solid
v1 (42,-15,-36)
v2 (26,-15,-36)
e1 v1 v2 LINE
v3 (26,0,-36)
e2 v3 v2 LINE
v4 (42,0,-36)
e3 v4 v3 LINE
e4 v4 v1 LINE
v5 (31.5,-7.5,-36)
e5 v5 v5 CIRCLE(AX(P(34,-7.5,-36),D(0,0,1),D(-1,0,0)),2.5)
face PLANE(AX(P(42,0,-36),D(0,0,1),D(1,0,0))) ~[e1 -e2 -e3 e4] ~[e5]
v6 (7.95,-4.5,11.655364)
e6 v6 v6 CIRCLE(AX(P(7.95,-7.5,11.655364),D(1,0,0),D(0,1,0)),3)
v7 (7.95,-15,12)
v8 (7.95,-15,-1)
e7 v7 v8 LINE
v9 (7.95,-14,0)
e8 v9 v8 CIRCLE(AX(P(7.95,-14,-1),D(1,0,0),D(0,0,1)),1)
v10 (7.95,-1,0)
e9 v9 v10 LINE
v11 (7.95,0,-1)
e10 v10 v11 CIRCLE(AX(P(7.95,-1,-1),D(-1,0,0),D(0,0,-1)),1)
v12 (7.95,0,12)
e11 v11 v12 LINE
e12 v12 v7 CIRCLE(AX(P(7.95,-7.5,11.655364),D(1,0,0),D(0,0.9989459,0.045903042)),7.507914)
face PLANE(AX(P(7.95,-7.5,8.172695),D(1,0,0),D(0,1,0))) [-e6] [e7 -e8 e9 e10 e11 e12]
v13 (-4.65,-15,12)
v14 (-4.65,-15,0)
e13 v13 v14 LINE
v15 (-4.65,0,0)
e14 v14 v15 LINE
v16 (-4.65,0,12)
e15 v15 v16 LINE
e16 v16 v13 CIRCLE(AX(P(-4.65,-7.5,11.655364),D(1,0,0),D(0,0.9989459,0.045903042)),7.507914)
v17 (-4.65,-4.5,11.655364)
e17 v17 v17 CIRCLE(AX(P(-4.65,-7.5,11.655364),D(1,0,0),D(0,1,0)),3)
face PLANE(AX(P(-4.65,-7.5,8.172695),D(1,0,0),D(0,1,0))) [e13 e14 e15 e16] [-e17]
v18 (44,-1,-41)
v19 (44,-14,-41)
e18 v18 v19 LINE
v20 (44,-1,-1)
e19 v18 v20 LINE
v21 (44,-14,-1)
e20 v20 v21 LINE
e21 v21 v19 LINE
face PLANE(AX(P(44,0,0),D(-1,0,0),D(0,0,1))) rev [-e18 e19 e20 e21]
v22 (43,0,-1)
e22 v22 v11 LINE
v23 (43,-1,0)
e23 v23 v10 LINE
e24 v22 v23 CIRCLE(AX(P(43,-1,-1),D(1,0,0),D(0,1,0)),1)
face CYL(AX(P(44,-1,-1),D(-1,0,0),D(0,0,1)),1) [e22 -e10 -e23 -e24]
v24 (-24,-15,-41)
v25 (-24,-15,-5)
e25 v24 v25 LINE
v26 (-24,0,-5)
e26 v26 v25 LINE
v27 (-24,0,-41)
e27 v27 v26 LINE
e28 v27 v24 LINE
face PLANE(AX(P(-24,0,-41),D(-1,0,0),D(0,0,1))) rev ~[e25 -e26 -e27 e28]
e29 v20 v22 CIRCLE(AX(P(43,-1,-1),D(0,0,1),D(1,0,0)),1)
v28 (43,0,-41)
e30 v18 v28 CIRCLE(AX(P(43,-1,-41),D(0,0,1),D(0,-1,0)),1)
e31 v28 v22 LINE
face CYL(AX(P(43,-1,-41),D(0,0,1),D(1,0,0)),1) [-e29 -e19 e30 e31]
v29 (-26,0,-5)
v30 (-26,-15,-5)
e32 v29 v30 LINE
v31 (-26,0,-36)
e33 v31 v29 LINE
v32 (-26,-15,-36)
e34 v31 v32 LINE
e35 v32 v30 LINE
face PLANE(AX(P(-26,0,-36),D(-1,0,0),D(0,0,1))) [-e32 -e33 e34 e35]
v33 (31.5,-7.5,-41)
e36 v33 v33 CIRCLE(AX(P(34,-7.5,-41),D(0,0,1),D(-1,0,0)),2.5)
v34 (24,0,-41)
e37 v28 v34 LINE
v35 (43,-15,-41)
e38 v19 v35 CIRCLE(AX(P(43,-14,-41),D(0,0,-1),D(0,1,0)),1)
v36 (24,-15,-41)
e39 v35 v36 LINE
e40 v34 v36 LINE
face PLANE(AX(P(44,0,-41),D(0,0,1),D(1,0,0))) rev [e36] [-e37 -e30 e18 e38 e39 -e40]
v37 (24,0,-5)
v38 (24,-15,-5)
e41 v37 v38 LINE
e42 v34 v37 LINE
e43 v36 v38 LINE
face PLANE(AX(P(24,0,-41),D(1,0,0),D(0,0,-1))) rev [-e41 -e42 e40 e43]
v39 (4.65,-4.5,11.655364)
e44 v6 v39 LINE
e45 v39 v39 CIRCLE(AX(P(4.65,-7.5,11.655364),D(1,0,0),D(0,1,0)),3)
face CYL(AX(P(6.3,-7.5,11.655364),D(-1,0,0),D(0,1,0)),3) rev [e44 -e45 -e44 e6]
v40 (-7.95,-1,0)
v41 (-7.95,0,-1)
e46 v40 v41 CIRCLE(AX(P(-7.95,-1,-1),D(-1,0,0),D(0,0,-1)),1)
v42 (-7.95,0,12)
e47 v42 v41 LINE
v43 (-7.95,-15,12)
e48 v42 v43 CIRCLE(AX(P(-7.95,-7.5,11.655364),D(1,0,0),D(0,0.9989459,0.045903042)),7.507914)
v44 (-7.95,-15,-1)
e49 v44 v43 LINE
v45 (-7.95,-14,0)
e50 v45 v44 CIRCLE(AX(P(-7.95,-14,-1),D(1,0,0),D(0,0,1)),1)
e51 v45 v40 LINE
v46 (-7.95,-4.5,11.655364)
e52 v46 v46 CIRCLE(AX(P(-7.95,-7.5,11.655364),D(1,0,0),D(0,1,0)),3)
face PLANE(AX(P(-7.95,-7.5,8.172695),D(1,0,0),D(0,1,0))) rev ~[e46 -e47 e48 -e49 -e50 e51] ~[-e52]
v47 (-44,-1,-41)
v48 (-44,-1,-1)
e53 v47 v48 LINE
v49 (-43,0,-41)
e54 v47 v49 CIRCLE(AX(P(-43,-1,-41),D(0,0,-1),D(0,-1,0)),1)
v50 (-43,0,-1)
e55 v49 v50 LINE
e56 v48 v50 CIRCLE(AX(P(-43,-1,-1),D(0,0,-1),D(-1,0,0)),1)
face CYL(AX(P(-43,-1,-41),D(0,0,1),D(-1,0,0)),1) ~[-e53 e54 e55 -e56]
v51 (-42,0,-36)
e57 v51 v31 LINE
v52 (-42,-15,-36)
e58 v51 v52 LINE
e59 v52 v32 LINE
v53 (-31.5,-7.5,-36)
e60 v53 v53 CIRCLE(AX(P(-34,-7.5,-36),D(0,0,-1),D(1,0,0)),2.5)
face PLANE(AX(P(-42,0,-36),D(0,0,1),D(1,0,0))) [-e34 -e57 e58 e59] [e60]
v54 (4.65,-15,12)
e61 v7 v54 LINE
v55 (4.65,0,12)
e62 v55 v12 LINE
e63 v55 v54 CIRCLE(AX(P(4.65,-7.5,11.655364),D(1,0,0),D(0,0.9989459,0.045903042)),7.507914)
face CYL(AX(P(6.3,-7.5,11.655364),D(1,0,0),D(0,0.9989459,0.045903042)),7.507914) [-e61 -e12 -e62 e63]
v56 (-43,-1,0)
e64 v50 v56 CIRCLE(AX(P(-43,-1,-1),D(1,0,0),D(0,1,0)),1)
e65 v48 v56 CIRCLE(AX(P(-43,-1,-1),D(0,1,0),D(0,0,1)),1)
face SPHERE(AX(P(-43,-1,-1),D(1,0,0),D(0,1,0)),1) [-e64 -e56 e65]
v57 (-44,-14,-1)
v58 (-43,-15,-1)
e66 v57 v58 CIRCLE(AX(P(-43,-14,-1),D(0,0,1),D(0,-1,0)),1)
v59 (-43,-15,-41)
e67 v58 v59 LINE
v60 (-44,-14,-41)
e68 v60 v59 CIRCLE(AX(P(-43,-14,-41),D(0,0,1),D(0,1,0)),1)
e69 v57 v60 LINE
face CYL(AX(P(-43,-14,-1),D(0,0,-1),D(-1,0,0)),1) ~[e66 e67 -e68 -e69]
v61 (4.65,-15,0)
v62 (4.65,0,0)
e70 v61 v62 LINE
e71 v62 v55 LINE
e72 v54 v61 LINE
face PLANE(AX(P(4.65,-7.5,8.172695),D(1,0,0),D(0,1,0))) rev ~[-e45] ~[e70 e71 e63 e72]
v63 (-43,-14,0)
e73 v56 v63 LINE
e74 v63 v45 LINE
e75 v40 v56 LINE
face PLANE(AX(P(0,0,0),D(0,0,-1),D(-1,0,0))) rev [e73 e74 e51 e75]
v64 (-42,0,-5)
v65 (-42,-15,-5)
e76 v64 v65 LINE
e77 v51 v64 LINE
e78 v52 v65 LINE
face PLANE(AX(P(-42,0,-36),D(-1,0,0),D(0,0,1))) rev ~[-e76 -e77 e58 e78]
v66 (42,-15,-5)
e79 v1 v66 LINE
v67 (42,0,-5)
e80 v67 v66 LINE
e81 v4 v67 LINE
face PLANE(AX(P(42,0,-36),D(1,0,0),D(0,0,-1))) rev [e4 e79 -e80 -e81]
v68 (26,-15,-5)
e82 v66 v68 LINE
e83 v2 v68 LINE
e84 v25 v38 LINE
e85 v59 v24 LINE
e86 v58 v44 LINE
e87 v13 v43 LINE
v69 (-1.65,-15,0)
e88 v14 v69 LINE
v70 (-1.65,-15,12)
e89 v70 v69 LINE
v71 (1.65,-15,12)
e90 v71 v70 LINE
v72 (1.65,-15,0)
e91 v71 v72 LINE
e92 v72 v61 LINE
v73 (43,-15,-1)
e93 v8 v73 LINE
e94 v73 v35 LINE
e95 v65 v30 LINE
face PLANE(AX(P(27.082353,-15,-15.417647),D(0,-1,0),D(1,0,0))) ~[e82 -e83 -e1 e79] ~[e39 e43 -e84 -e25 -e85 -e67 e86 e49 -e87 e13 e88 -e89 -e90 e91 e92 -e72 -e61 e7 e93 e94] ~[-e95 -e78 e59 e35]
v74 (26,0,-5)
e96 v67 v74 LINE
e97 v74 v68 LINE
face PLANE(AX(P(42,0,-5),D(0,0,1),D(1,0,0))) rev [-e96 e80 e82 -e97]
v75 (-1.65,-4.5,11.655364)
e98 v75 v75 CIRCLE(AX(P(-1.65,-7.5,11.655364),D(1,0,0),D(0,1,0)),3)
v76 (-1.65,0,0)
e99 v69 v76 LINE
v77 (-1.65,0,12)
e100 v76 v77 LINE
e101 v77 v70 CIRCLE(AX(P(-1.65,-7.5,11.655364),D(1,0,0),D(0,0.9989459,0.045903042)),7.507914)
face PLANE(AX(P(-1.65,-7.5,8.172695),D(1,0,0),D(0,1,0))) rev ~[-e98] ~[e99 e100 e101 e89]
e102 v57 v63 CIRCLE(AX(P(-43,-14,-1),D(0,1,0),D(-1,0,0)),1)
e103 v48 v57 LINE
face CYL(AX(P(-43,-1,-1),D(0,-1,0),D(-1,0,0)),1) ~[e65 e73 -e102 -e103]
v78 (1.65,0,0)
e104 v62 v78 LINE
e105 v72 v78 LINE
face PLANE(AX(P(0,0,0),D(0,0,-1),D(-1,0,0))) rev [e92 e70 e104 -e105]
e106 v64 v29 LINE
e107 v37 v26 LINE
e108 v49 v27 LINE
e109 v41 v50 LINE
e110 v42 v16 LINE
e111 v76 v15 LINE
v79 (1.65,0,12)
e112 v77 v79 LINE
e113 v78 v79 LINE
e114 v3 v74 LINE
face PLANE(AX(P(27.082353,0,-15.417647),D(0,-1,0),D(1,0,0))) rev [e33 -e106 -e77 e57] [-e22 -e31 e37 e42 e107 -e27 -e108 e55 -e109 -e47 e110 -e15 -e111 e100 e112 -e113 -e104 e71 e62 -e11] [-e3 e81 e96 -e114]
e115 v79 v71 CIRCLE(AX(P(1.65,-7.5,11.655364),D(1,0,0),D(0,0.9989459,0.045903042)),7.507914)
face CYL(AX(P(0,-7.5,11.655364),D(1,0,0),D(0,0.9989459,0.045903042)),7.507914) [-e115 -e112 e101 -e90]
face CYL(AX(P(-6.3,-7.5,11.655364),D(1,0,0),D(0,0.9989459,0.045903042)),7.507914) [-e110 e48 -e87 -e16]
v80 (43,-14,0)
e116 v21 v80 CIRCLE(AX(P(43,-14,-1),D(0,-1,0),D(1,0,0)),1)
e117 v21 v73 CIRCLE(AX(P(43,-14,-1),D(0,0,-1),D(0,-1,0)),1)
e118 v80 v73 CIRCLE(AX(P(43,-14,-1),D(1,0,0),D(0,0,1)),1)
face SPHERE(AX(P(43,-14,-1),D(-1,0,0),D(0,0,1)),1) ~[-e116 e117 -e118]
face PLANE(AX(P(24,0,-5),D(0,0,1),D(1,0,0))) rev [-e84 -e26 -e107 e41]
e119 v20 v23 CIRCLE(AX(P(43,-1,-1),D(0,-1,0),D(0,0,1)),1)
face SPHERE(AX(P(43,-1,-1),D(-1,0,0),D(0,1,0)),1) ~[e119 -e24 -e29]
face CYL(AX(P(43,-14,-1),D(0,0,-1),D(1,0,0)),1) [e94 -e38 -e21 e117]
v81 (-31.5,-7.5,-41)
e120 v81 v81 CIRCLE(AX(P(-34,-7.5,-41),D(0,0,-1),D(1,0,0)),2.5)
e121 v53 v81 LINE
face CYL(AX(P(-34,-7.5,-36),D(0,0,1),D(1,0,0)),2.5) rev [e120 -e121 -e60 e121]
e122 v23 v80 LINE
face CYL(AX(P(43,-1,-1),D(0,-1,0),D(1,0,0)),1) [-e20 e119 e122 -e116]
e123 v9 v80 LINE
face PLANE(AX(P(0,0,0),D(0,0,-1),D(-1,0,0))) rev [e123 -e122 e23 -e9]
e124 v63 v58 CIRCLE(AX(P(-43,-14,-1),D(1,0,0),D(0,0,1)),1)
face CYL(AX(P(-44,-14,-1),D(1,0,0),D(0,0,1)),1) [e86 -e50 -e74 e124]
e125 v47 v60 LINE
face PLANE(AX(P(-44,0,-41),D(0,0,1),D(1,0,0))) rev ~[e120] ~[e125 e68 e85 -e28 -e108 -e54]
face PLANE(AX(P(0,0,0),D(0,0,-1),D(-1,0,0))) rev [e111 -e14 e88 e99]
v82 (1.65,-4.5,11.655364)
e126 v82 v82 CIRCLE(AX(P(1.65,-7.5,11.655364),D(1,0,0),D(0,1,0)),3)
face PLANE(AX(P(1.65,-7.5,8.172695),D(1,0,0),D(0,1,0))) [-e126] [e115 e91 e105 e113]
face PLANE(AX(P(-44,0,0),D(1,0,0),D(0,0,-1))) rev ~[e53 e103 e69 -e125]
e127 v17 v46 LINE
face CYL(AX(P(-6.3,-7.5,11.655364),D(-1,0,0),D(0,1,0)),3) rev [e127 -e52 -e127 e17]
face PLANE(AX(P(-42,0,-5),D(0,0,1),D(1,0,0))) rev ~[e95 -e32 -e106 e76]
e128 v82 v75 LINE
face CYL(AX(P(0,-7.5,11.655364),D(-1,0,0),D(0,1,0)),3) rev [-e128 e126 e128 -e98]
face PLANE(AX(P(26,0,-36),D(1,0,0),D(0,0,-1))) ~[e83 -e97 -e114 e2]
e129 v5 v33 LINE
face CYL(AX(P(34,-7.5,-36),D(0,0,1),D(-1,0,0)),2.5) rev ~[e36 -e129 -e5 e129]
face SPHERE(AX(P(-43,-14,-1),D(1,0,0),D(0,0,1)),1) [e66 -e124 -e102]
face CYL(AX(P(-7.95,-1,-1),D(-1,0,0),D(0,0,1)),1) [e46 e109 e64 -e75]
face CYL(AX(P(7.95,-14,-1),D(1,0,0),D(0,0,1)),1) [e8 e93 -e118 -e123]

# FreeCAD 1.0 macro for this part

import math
import FreeCAD as App
import Part
import Sketcher

V = App.Vector
Q = App.Units.Quantity


def edges_at(feature, points):
    """Names of the edges that pass closest to the given points."""
    edges = feature.Shape.Edges
    near = lambda p: min(range(len(edges)), key=lambda i: edges[i].distToShape(Part.Vertex(*p))[0])
    return sorted({f"Edge{near(p) + 1}" for p in points})

doc = App.newDocument("Part")
body = doc.addObject("PartDesign::Body", "Body")

sketch1 = body.newObject("Sketcher::SketchObject", "Sketch")
sketch1.AttachmentSupport = (doc.getObject("XZ_Plane"), [""])
sketch1.MapMode = "FlatFace"
sketch1.addGeometry(Part.LineSegment(V(0, 0, 0), V(-44, 0, 0)), False)
sketch1.addGeometry(Part.LineSegment(V(-44, 0, 0), V(-44, -41, 0)), False)
sketch1.addGeometry(Part.LineSegment(V(-44, -41, 0), V(-24, -41, 0)), False)
sketch1.addGeometry(Part.LineSegment(V(-24, -41, 0), V(-24, -5, 0)), False)
sketch1.addGeometry(Part.LineSegment(V(-24, -5, 0), V(0, -5, 0)), False)
sketch1.addGeometry(Part.LineSegment(V(0, -5, 0), V(0, 0, 0)), False)
sketch1.addGeometry(Part.LineSegment(V(-26, -36, 0), V(-42, -36, 0)), False)
sketch1.addGeometry(Part.LineSegment(V(-42, -36, 0), V(-42, -5, 0)), False)
sketch1.addGeometry(Part.LineSegment(V(-42, -5, 0), V(-26, -5, 0)), False)
sketch1.addGeometry(Part.LineSegment(V(-26, -5, 0), V(-26, -36, 0)), False)
sketch1.addConstraint(Sketcher.Constraint("Coincident", 0, 2, 1, 1))
sketch1.addConstraint(Sketcher.Constraint("Coincident", 1, 2, 2, 1))
sketch1.addConstraint(Sketcher.Constraint("Coincident", 2, 2, 3, 1))
sketch1.addConstraint(Sketcher.Constraint("Coincident", 3, 2, 4, 1))
sketch1.addConstraint(Sketcher.Constraint("Coincident", 4, 2, 5, 1))
sketch1.addConstraint(Sketcher.Constraint("Coincident", 5, 2, 0, 1))
sketch1.addConstraint(Sketcher.Constraint("Coincident", 6, 2, 7, 1))
sketch1.addConstraint(Sketcher.Constraint("Coincident", 7, 2, 8, 1))
sketch1.addConstraint(Sketcher.Constraint("Coincident", 8, 2, 9, 1))
sketch1.addConstraint(Sketcher.Constraint("Coincident", 9, 2, 6, 1))
sketch1.addConstraint(Sketcher.Constraint("Horizontal", 0))
sketch1.addConstraint(Sketcher.Constraint("Vertical", 1))
sketch1.addConstraint(Sketcher.Constraint("Horizontal", 2))
sketch1.addConstraint(Sketcher.Constraint("Vertical", 3))
sketch1.addConstraint(Sketcher.Constraint("Horizontal", 4))
sketch1.addConstraint(Sketcher.Constraint("Vertical", 5))
sketch1.addConstraint(Sketcher.Constraint("Horizontal", 6))
sketch1.addConstraint(Sketcher.Constraint("Vertical", 7))
sketch1.addConstraint(Sketcher.Constraint("Horizontal", 8))
sketch1.addConstraint(Sketcher.Constraint("Vertical", 9))
sketch1.addConstraint(Sketcher.Constraint("Coincident", 5, 2, -1, 1))
sketch1.addConstraint(Sketcher.Constraint("Horizontal", 4, 2, 7, 2))
sketch1.addConstraint(Sketcher.Constraint("DistanceX", 0, 2, 0, 1, Q("44 mm")))
sketch1.addConstraint(Sketcher.Constraint("DistanceX", 2, 1, 2, 2, Q("20 mm")))
sketch1.addConstraint(Sketcher.Constraint("DistanceX", 6, 2, 6, 1, Q("16 mm")))
sketch1.addConstraint(Sketcher.Constraint("DistanceY", 1, 2, 1, 1, Q("41 mm")))
sketch1.addConstraint(Sketcher.Constraint("DistanceY", 3, 1, 3, 2, Q("36 mm")))
sketch1.addConstraint(Sketcher.Constraint("DistanceY", 7, 1, 7, 2, Q("31 mm")))
sketch1.addConstraint(Sketcher.Constraint("DistanceX", 6, 2, -1, 1, Q("42 mm")))
pad1 = body.newObject("PartDesign::Pad", "Pad")
pad1.Profile = sketch1
pad1.Length = 15
doc.recompute()

mirrored = body.newObject("PartDesign::Mirrored", "Mirrored")
mirrored.Originals = [pad1]
mirrored.MirrorPlane = (doc.getObject("YZ_Plane"), [""])
body.Tip = mirrored

sketch2 = body.newObject("Sketcher::SketchObject", "Sketch001")
sketch2.AttachmentSupport = (doc.getObject("XY_Plane"), [""])
sketch2.MapMode = "FlatFace"
sketch2.AttachmentOffset = App.Placement(V(0, 0, -36), App.Rotation())
sketch2.addGeometry(Part.Circle(V(34, -7.5, 0), V(0, 0, 1), 2.5), False)
sketch2.addConstraint(Sketcher.Constraint("Diameter", 0, Q("5 mm")))
sketch2.addConstraint(Sketcher.Constraint("DistanceX", -1, 1, 0, 3, Q("34 mm")))
sketch2.addConstraint(Sketcher.Constraint("DistanceY", 0, 3, -1, 1, Q("7.5 mm")))
pocket1 = body.newObject("PartDesign::Pocket", "Pocket")
pocket1.Profile = sketch2
pocket1.Length = 5
doc.recompute()

mirrored2 = body.newObject("PartDesign::Mirrored", "Mirrored001")
mirrored2.Originals = [pocket1]
mirrored2.MirrorPlane = (doc.getObject("YZ_Plane"), [""])
body.Tip = mirrored2

sketch3 = body.newObject("Sketcher::SketchObject", "Sketch002")
sketch3.AttachmentSupport = (doc.getObject("YZ_Plane"), [""])
sketch3.MapMode = "FlatFace"
sketch3.addGeometry(Part.LineSegment(V(-15, 0, 0), V(0, 0, 0)), False)
sketch3.addGeometry(Part.LineSegment(V(0, 0, 0), V(0, 12, 0)), False)
sketch3.addGeometry(Part.ArcOfCircle(Part.Circle(V(-7.5, 11.7, 0), V(0, 0, 1), 7.5), math.radians(3), math.radians(177)), False)
sketch3.addGeometry(Part.LineSegment(V(-15, 12, 0), V(-15, 0, 0)), False)
sketch3.addGeometry(Part.Circle(V(-7.5, 11.7, 0), V(0, 0, 1), 3), False)
sketch3.addConstraint(Sketcher.Constraint("Coincident", 0, 2, 1, 1))
sketch3.addConstraint(Sketcher.Constraint("Coincident", 1, 2, 2, 1))
sketch3.addConstraint(Sketcher.Constraint("Coincident", 2, 2, 3, 1))
sketch3.addConstraint(Sketcher.Constraint("Coincident", 3, 2, 0, 1))
sketch3.addConstraint(Sketcher.Constraint("Horizontal", 0))
sketch3.addConstraint(Sketcher.Constraint("Vertical", 1))
sketch3.addConstraint(Sketcher.Constraint("Vertical", 3))
sketch3.addConstraint(Sketcher.Constraint("Coincident", 0, 2, -1, 1))
sketch3.addConstraint(Sketcher.Constraint("Coincident", 4, 3, 2, 3))
sketch3.addConstraint(Sketcher.Constraint("Horizontal", 1, 2, 2, 2))
sketch3.addConstraint(Sketcher.Constraint("Diameter", 4, Q("6 mm")))
sketch3.addConstraint(Sketcher.Constraint("DistanceX", 0, 1, 0, 2, Q("15 mm")))
sketch3.addConstraint(Sketcher.Constraint("DistanceY", 1, 1, 1, 2, Q("12 mm")))
sketch3.addConstraint(Sketcher.Constraint("Radius", 2, Q("7.507914 mm")))
pad2 = body.newObject("PartDesign::Pad", "Pad001")
pad2.Profile = sketch3
pad2.Length = 3.3
pad2.Midplane = True
doc.recompute()

linearpattern = body.newObject("PartDesign::LinearPattern", "LinearPattern")
linearpattern.Originals = [pad2]
linearpattern.Direction = (doc.getObject("X_Axis"), [""])
linearpattern.Mode = "offset"
linearpattern.Offset = 6.3
linearpattern.Occurrences = 2
body.Tip = linearpattern
doc.recompute()

linearpattern2 = body.newObject("PartDesign::LinearPattern", "LinearPattern001")
linearpattern2.Originals = [pad2]
linearpattern2.Direction = (doc.getObject("X_Axis"), [""])
linearpattern2.Mode = "offset"
linearpattern2.Offset = 6.3
linearpattern2.Occurrences = 2
linearpattern2.Reversed = True
body.Tip = linearpattern2
doc.recompute()

fillet = body.newObject("PartDesign::Fillet", "Fillet")
fillet.Base = (linearpattern2, edges_at(linearpattern2, [(25.975, 0, 0)]))
fillet.Radius = 1
doc.recompute()

fillet2 = body.newObject("PartDesign::Fillet", "Fillet001")
fillet2.Base = (fillet, edges_at(fillet, [(-25.975, 0, 0)]))
fillet2.Radius = 1
doc.recompute()

fillet3 = body.newObject("PartDesign::Fillet", "Fillet002")
fillet3.Base = (fillet2, edges_at(fillet2, [(25.975, -15, 0)]))
fillet3.Radius = 1
doc.recompute()

fillet4 = body.newObject("PartDesign::Fillet", "Fillet003")
fillet4.Base = (fillet3, edges_at(fillet3, [(-25.975, -15, 0)]))
fillet4.Radius = 1
doc.recompute()

fillet5 = body.newObject("PartDesign::Fillet", "Fillet004")
fillet5.Base = (fillet4, edges_at(fillet4, [(-44, -7.5, 0)]))
fillet5.Radius = 1
doc.recompute()

fillet6 = body.newObject("PartDesign::Fillet", "Fillet005")
fillet6.Base = (fillet5, edges_at(fillet5, [(44, -7.5, 0)]))
fillet6.Radius = 1

doc.recompute()
